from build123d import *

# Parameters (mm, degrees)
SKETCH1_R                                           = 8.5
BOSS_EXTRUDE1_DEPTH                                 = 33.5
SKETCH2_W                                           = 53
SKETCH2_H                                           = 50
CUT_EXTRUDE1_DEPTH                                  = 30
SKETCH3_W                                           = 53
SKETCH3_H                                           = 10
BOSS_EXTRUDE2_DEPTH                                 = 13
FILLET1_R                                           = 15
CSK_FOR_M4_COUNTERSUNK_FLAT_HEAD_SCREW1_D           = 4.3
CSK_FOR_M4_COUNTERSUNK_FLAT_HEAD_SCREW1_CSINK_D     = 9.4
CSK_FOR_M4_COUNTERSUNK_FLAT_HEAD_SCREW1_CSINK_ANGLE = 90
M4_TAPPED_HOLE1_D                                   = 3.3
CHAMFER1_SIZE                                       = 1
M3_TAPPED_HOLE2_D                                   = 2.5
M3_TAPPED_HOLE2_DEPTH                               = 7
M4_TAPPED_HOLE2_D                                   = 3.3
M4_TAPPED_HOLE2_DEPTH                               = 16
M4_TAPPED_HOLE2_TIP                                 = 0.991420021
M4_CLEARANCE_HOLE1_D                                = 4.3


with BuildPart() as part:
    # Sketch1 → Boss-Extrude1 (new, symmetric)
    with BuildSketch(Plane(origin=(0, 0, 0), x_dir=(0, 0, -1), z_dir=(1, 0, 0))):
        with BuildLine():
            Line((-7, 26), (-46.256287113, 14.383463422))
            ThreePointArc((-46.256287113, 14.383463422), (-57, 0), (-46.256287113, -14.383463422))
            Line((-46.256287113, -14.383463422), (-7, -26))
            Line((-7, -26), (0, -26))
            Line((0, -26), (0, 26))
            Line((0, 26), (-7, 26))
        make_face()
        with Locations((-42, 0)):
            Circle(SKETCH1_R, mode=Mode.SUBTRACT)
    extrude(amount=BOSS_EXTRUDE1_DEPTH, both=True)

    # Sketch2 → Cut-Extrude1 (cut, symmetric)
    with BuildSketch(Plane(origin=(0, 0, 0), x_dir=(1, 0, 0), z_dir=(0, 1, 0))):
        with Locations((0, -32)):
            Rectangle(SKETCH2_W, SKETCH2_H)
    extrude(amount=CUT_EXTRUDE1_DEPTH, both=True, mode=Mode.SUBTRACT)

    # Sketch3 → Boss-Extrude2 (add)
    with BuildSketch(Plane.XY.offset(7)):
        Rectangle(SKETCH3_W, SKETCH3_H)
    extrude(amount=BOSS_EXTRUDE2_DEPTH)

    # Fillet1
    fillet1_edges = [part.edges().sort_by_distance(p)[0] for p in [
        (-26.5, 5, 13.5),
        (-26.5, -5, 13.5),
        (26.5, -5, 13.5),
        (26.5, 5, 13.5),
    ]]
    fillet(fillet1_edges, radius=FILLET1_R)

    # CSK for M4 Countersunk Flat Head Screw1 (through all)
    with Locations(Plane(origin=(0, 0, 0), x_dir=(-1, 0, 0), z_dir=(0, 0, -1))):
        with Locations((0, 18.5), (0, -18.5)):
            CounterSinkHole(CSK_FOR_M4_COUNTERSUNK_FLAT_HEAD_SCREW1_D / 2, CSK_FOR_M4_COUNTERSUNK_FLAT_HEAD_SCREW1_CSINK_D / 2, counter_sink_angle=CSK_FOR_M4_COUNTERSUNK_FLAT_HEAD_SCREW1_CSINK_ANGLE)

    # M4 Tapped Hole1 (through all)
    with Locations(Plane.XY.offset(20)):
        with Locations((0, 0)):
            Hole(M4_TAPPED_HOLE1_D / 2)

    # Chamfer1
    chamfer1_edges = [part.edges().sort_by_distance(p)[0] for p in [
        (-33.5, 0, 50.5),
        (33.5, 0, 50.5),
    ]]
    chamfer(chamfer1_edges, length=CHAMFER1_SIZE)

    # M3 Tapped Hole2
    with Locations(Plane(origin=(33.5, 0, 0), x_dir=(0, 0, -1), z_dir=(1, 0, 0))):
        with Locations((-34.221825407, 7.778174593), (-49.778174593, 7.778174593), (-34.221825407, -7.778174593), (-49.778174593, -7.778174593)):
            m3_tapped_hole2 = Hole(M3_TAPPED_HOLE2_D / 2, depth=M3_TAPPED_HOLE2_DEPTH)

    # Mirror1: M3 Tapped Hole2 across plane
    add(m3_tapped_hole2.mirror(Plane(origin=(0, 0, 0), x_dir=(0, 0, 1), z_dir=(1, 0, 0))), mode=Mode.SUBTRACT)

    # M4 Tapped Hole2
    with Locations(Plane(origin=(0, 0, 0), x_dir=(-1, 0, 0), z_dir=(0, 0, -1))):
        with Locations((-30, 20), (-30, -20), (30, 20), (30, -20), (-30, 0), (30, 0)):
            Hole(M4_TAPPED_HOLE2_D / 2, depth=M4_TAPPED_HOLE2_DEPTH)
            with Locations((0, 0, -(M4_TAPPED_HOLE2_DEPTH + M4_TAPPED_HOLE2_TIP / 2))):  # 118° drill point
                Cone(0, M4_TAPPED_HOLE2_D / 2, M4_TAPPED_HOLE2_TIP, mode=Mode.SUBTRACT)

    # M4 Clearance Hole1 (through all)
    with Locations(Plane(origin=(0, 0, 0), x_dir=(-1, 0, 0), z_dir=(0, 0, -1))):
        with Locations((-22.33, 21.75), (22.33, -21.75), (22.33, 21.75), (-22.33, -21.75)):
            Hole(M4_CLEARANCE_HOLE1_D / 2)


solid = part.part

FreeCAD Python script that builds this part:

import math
import FreeCAD as App
import Part
import Sketcher
Q = App.Units.Quantity


def edges_at(feature, points):
    """Names of the edges that pass closest to the given points."""
    edges = feature.Shape.Edges
    near = lambda p: min(range(len(edges)), key=lambda i: edges[i].distToShape(Part.Vertex(*p))[0])
    return sorted({f"Edge{near(p) + 1}" for p in points})


def add_polygon(sketch, points):
    """Adds a closed chain of lines whose ends are joined by coincident constraints."""
    first, n = sketch.GeometryCount, len(points)
    for a, b in zip(points, points[1:] + points[:1]):
        sketch.addGeometry(Part.LineSegment(App.Vector(*a, 0), App.Vector(*b, 0)), False)
    for i in range(n):
        sketch.addConstraint(Sketcher.Constraint("Coincident", first + i, 2, first + (i + 1) % n, 1))

doc = App.newDocument("Part")
body = doc.addObject("PartDesign::Body", "Body")

sketch1 = body.newObject("Sketcher::SketchObject", "Sketch")
sketch1.AttachmentSupport = (doc.getObject("YZ_Plane"), [""])
sketch1.MapMode = "FlatFace"
sketch1.addGeometry([
    Part.LineSegment(App.Vector(26, 7, 0), App.Vector(14, 46, 0)),
    Part.ArcOfCircle(Part.Circle(App.Vector(0, 42, 0), App.Vector(0, 0, 1), 15), math.radians(16), math.radians(164)),
    Part.LineSegment(App.Vector(-14, 46, 0), App.Vector(-26, 7, 0)),
    Part.LineSegment(App.Vector(-26, 7, 0), App.Vector(-26, 0, 0)),
    Part.LineSegment(App.Vector(-26, 0, 0), App.Vector(26, 0, 0)),
    Part.LineSegment(App.Vector(26, 0, 0), App.Vector(26, 7, 0)),
    Part.Circle(App.Vector(0, 42, 0), App.Vector(0, 0, 1), 8),
], False)
sketch1.addConstraint([
    Sketcher.Constraint("Tangent", 0, 2, 1, 1),
    Sketcher.Constraint("Tangent", 1, 2, 2, 1),
    Sketcher.Constraint("Coincident", 2, 2, 3, 1),
    Sketcher.Constraint("Coincident", 3, 2, 4, 1),
    Sketcher.Constraint("Coincident", 4, 2, 5, 1),
    Sketcher.Constraint("Coincident", 5, 2, 0, 1),
    Sketcher.Constraint("Vertical", 3),
    Sketcher.Constraint("Horizontal", 4),
    Sketcher.Constraint("Vertical", 5),
    Sketcher.Constraint("Coincident", 6, 3, 1, 3),
    Sketcher.Constraint("Symmetric", 3, 2, 4, 2, -1, 1),
    Sketcher.Constraint("Symmetric", 0, 2, 1, 2, -2),
    Sketcher.Constraint("Diameter", 6, Q("17 mm")),
    Sketcher.Constraint("Radius", 1, Q("15 mm")),
    Sketcher.Constraint("DistanceX", 4, 1, 4, 2, Q("52 mm")),
    Sketcher.Constraint("DistanceY", 3, 2, 3, 1, Q("7 mm")),
    Sketcher.Constraint("DistanceY", -1, 1, 1, 3, Q("42 mm")),
])
pad1 = body.newObject("PartDesign::Pad", "Pad")
pad1.Profile = sketch1
pad1.Length = 67
pad1.Midplane = True

sketch2 = body.newObject("Sketcher::SketchObject", "Sketch001")
sketch2.AttachmentSupport = (doc.getObject("XZ_Plane"), [""])
sketch2.MapMode = "FlatFace"
add_polygon(sketch2, [(-26, 7), (-26, 57), (26, 57), (26, 7)])
sketch2.addConstraint([
    Sketcher.Constraint("Vertical", 0),
    Sketcher.Constraint("Horizontal", 1),
    Sketcher.Constraint("Vertical", 2),
    Sketcher.Constraint("Horizontal", 3),
    Sketcher.Constraint("DistanceX", 1, 1, 1, 2, Q("53 mm")),
    Sketcher.Constraint("DistanceY", 0, 1, 0, 2, Q("50 mm")),
    Sketcher.Constraint("DistanceY", -1, 1, 0, 2, Q("57 mm")),
    Sketcher.Constraint("DistanceX", 0, 2, -1, 1, Q("26.5 mm")),
])
pocket1 = body.newObject("PartDesign::Pocket", "Pocket")
pocket1.Profile = sketch2
pocket1.Length = 60
pocket1.Midplane = True

sketch3 = body.newObject("Sketcher::SketchObject", "Sketch002")
sketch3.AttachmentSupport = (doc.getObject("XY_Plane"), [""])
sketch3.MapMode = "FlatFace"
sketch3.AttachmentOffset = App.Placement(App.Vector(0, 0, 7), App.Rotation())
add_polygon(sketch3, [(-26, 5), (-26, -5), (26, -5), (26, 5)])
sketch3.addConstraint([
    Sketcher.Constraint("Vertical", 0),
    Sketcher.Constraint("Horizontal", 1),
    Sketcher.Constraint("Vertical", 2),
    Sketcher.Constraint("Horizontal", 3),
    Sketcher.Constraint("Symmetric", 0, 2, 2, 2, -1, 1),
    Sketcher.Constraint("DistanceX", 1, 1, 1, 2, Q("53 mm")),
    Sketcher.Constraint("DistanceY", 0, 2, 0, 1, Q("10 mm")),
])
pad2 = body.newObject("PartDesign::Pad", "Pad001")
pad2.Profile = sketch3
pad2.Length = 13
doc.recompute()

fillet = body.newObject("PartDesign::Fillet", "Fillet")
fillet.Base = (pad2, edges_at(pad2, [
    (-26.5, 5, 13.5),
    (-26.5, -5, 13.5),
    (26.5, -5, 13.5),
    (26.5, 5, 13.5),
]))
fillet.Radius = 15

sketch4 = body.newObject("Sketcher::SketchObject", "Sketch003")
sketch4.AttachmentSupport = (doc.getObject("XY_Plane"), [""])
sketch4.MapMode = "FlatFace"
sketch4.addGeometry([
    Part.Circle(App.Vector(0, 18.5, 0), App.Vector(0, 0, 1), 2.1),
    Part.Circle(App.Vector(0, -18.5, 0), App.Vector(0, 0, 1), 2.1),
], False)
sketch4.addConstraint([
    Sketcher.Constraint("Equal", 0, 1),
    Sketcher.Constraint("Symmetric", 0, 3, 1, 3, -1, 1),
    Sketcher.Constraint("PointOnObject", 0, 3, -2),
    Sketcher.Constraint("Diameter", 0, Q("4.3 mm")),
    Sketcher.Constraint("DistanceY", 1, 3, 0, 3, Q("37 mm")),
])
doc.recompute()
hole = body.newObject("PartDesign::Hole", "Hole")
hole.Profile = sketch4
hole.ThreadType = "None"
hole.Diameter = 4.3
hole.DepthType = "ThroughAll"
hole.HoleCutType = "Countersink"
hole.HoleCutDiameter = 9.4
hole.HoleCutCountersinkAngle = 90
hole.Reversed = True

sketch5 = body.newObject("Sketcher::SketchObject", "Sketch004")
sketch5.AttachmentSupport = (doc.getObject("XY_Plane"), [""])
sketch5.MapMode = "FlatFace"
sketch5.AttachmentOffset = App.Placement(App.Vector(0, 0, 20), App.Rotation())
sketch5.addGeometry(Part.Circle(App.Vector(0, 0, 0), App.Vector(0, 0, 1), 1.6), False)
sketch5.addConstraint([
    Sketcher.Constraint("Coincident", 0, 3, -1, 1),
    Sketcher.Constraint("Diameter", 0, Q("3.3 mm")),
])
doc.recompute()
hole2 = body.newObject("PartDesign::Hole", "Hole001")
hole2.Profile = sketch5
hole2.ThreadType = "None"
hole2.Diameter = 3.3
hole2.DepthType = "ThroughAll"
doc.recompute()

chamfer = body.newObject("PartDesign::Chamfer", "Chamfer")
chamfer.Base = (hole2, edges_at(hole2, [(-33.5, 0, 50.5), (33.5, 0, 50.5)]))
chamfer.Size = 1

sketch6 = body.newObject("Sketcher::SketchObject", "Sketch005")
sketch6.AttachmentSupport = (doc.getObject("YZ_Plane"), [""])
sketch6.MapMode = "FlatFace"
sketch6.AttachmentOffset = App.Placement(App.Vector(0, 0, 33.5), App.Rotation())
sketch6.addGeometry([
    Part.Circle(App.Vector(7.8, 34.2, 0), App.Vector(0, 0, 1), 1.2),
    Part.Circle(App.Vector(7.8, 49.8, 0), App.Vector(0, 0, 1), 1.2),
    Part.Circle(App.Vector(-7.8, 34.2, 0), App.Vector(0, 0, 1), 1.2),
    Part.Circle(App.Vector(-7.8, 49.8, 0), App.Vector(0, 0, 1), 1.2),
], False)
sketch6.addConstraint([
    Sketcher.Constraint("Equal", 0, 1),
    Sketcher.Constraint("Equal", 1, 2),
    Sketcher.Constraint("Equal", 2, 3),
    Sketcher.Constraint("Symmetric", 0, 3, 2, 3, -2),
    Sketcher.Constraint("Symmetric", 1, 3, 3, 3, -2),
    Sketcher.Constraint("Vertical", 0, 3, 1, 3),
    Sketcher.Constraint("Diameter", 0, Q("2.5 mm")),
    Sketcher.Constraint("DistanceY", 0, 3, 1, 3, Q("15.556349 mm")),
    Sketcher.Constraint("DistanceX", 2, 3, 0, 3, Q("15.556349 mm")),
    Sketcher.Constraint("DistanceY", -1, 1, 0, 3, Q("34.221825 mm")),
])
doc.recompute()
hole3 = body.newObject("PartDesign::Hole", "Hole002")
hole3.Profile = sketch6
hole3.ThreadType = "None"
hole3.Diameter = 2.5
hole3.DepthType = "Dimension"
hole3.Depth = 7
hole3.DrillPoint = "Flat"
doc.recompute()

mirrored = body.newObject("PartDesign::Mirrored", "Mirrored")
mirrored.Originals = [hole3]
mirrored.MirrorPlane = (doc.getObject("YZ_Plane"), [""])
body.Tip = mirrored

sketch7 = body.newObject("Sketcher::SketchObject", "Sketch006")
sketch7.AttachmentSupport = (doc.getObject("XY_Plane"), [""])
sketch7.MapMode = "FlatFace"
sketch7.addGeometry([
    Part.Circle(App.Vector(30, 20, 0), App.Vector(0, 0, 1), 1.6),
    Part.Circle(App.Vector(30, -20, 0), App.Vector(0, 0, 1), 1.6),
    Part.Circle(App.Vector(-30, 20, 0), App.Vector(0, 0, 1), 1.6),
    Part.Circle(App.Vector(-30, -20, 0), App.Vector(0, 0, 1), 1.6),
    Part.Circle(App.Vector(30, 0, 0), App.Vector(0, 0, 1), 1.6),
    Part.Circle(App.Vector(-30, 0, 0), App.Vector(0, 0, 1), 1.6),
], False)
sketch7.addConstraint([
    Sketcher.Constraint("Equal", 0, 1),
    Sketcher.Constraint("Equal", 1, 2),
    Sketcher.Constraint("Equal", 2, 3),
    Sketcher.Constraint("Equal", 3, 4),
    Sketcher.Constraint("Equal", 4, 5),
    Sketcher.Constraint("Symmetric", 1, 3, 2, 3, -1, 1),
    Sketcher.Constraint("Symmetric", 0, 3, 3, 3, -1, 1),
    Sketcher.Constraint("Symmetric", 4, 3, 5, 3, -1, 1),
    Sketcher.Constraint("Symmetric", 0, 3, 2, 3, -2),
    Sketcher.Constraint("PointOnObject", 4, 3, -1),
    Sketcher.Constraint("Vertical", 1, 3, 4, 3),
    Sketcher.Constraint("Diameter", 0, Q("3.3 mm")),
    Sketcher.Constraint("DistanceX", -1, 1, 0, 3, Q("30 mm")),
    Sketcher.Constraint("DistanceY", -1, 1, 0, 3, Q("20 mm")),
])
doc.recompute()
hole4 = body.newObject("PartDesign::Hole", "Hole003")
hole4.Profile = sketch7
hole4.ThreadType = "None"
hole4.Diameter = 3.3
hole4.DepthType = "Dimension"
hole4.Depth = 16
hole4.DrillPoint = "Angled"
hole4.DrillPointAngle = 118
hole4.Reversed = True

sketch8 = body.newObject("Sketcher::SketchObject", "Sketch007")
sketch8.AttachmentSupport = (doc.getObject("XY_Plane"), [""])
sketch8.MapMode = "FlatFace"
sketch8.addGeometry([
    Part.Circle(App.Vector(22.3, 21.8, 0), App.Vector(0, 0, 1), 2.1),
    Part.Circle(App.Vector(-22.3, -21.8, 0), App.Vector(0, 0, 1), 2.1),
    Part.Circle(App.Vector(-22.3, 21.8, 0), App.Vector(0, 0, 1), 2.1),
    Part.Circle(App.Vector(22.3, -21.8, 0), App.Vector(0, 0, 1), 2.1),
], False)
sketch8.addConstraint([
    Sketcher.Constraint("Equal", 0, 1),
    Sketcher.Constraint("Equal", 1, 2),
    Sketcher.Constraint("Equal", 2, 3),
    Sketcher.Constraint("Symmetric", 0, 3, 1, 3, -1, 1),
    Sketcher.Constraint("Symmetric", 2, 3, 3, 3, -1, 1),
    Sketcher.Constraint("Symmetric", 0, 3, 2, 3, -2),
    Sketcher.Constraint("Diameter", 0, Q("4.3 mm")),
    Sketcher.Constraint("DistanceY", 1, 3, 0, 3, Q("43.5 mm")),
    Sketcher.Constraint("DistanceX", -1, 1, 0, 3, Q("22.33 mm")),
])
doc.recompute()
hole5 = body.newObject("PartDesign::Hole", "Hole004")
hole5.Profile = sketch8
hole5.ThreadType = "None"
hole5.Diameter = 4.3
hole5.DepthType = "ThroughAll"
hole5.Reversed = True

doc.recompute()
